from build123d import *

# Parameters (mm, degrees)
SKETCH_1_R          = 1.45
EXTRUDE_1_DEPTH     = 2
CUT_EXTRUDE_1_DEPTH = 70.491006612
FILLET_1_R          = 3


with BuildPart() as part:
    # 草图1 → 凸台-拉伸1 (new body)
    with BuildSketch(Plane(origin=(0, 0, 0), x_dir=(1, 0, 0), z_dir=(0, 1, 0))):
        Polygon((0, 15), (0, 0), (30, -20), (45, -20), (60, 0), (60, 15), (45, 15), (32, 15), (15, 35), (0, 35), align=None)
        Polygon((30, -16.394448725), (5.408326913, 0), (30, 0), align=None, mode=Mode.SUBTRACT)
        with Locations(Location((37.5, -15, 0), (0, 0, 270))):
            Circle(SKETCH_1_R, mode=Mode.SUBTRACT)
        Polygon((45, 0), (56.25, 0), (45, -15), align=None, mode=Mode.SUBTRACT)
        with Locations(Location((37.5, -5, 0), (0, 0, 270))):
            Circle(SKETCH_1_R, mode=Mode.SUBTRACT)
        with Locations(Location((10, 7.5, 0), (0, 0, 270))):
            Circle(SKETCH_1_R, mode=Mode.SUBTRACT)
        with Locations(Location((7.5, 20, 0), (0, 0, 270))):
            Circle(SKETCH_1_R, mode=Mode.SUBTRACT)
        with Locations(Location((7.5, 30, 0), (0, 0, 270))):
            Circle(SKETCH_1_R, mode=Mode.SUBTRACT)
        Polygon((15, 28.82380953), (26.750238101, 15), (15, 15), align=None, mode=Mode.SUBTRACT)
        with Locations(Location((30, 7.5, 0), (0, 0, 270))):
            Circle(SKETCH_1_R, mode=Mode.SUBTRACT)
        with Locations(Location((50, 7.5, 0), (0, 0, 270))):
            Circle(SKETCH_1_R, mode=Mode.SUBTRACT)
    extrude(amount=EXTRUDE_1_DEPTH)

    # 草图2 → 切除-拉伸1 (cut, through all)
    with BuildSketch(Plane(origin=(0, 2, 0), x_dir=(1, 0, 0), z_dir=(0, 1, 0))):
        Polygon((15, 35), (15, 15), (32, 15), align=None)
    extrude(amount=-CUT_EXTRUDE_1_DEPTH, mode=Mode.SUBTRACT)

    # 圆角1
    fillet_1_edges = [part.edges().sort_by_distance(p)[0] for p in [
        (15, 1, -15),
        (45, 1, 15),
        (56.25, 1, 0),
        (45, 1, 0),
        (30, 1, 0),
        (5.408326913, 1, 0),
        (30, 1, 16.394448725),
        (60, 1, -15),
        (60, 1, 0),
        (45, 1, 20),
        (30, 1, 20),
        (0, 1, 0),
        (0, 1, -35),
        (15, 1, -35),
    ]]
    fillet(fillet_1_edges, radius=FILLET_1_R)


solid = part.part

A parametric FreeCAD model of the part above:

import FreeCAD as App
import Part
import Sketcher

V = App.Vector


def edges_at(feature, points):
    """Names of the edges that pass closest to the given points."""
    edges = feature.Shape.Edges
    near = lambda p: min(range(len(edges)), key=lambda i: edges[i].distToShape(Part.Vertex(*p))[0])
    return sorted({f"Edge{near(p) + 1}" for p in points})


def add_polygon(sketch, points):
    """Adds a closed chain of lines whose ends are joined by coincident constraints."""
    first, n = sketch.GeometryCount, len(points)
    for a, b in zip(points, points[1:] + points[:1]):
        sketch.addGeometry(Part.LineSegment(App.Vector(*a, 0), App.Vector(*b, 0)), False)
    for i in range(n):
        sketch.addConstraint(Sketcher.Constraint("Coincident", first + i, 2, first + (i + 1) % n, 1))

doc = App.newDocument("Part")
body = doc.addObject("PartDesign::Body", "Body")

sketch1 = doc.addObject("Sketcher::SketchObject", "Sketch")
body.addObject(sketch1)
sketch1.AttachmentSupport = (doc.XZ_Plane, [""])
sketch1.MapMode = "FlatFace"
add_polygon(sketch1, [(0, 0), (30, 20), (45, 20), (60, 0), (60, -15), (32, -15), (15, -35), (0, -35)])
add_polygon(sketch1, [(30, 0), (30, 16.4), (5.4, 0)])
sketch1.addGeometry(Part.Circle(V(37.5, 15, 0), V(0, 0, 1), 1.4), False)
sketch1.addGeometry(Part.Circle(V(37.5, 5, 0), V(0, 0, 1), 1.4), False)
add_polygon(sketch1, [(45, 15), (45, 0), (56.2, 0)])
sketch1.addGeometry(Part.Circle(V(10, -7.5, 0), V(0, 0, 1), 1.4), False)
sketch1.addGeometry(Part.Circle(V(30, -7.5, 0), V(0, 0, 1), 1.4), False)
sketch1.addGeometry(Part.Circle(V(7.5, -20, 0), V(0, 0, 1), 1.4), False)
sketch1.addGeometry(Part.Circle(V(7.5, -30, 0), V(0, 0, 1), 1.4), False)
add_polygon(sketch1, [(15, -15), (15, -28.8), (26.8, -15)])
sketch1.addGeometry(Part.Circle(V(50, -7.5, 0), V(0, 0, 1), 1.4), False)
sketch1.addConstraint([
    Sketcher.Constraint("Horizontal", 1),
    Sketcher.Constraint("Vertical", 3),
    Sketcher.Constraint("Horizontal", 4),
    Sketcher.Constraint("Horizontal", 6),
    Sketcher.Constraint("Vertical", 7),
    Sketcher.Constraint("Vertical", 8),
    Sketcher.Constraint("Horizontal", 10),
    Sketcher.Constraint("Vertical", 13),
    Sketcher.Constraint("Horizontal", 14),
    Sketcher.Constraint("Vertical", 20),
    Sketcher.Constraint("Horizontal", 22),
    Sketcher.Constraint("Coincident", 7, 2, -1, 1),
    Sketcher.Constraint("Equal", 11, 12),
    Sketcher.Constraint("Equal", 12, 16),
    Sketcher.Constraint("Equal", 16, 17),
    Sketcher.Constraint("Equal", 17, 18),
    Sketcher.Constraint("Equal", 18, 19),
    Sketcher.Constraint("Equal", 19, 23),
    Sketcher.Constraint("PointOnObject", 2, 2, -1),
    Sketcher.Constraint("PointOnObject", 9, 2, -1),
    Sketcher.Constraint("PointOnObject", 13, 2, -1),
    Sketcher.Constraint("Parallel", 0, 9),
    Sketcher.Constraint("Parallel", 2, 15),
    Sketcher.Constraint("Parallel", 5, 21),
    Sketcher.Constraint("Horizontal", 16, 3, 17, 3),
    Sketcher.Constraint("Horizontal", 17, 3, 23, 3),
    Sketcher.Constraint("Horizontal", 11, 3, 15, 2),
    Sketcher.Constraint("Horizontal", 4, 2, 21, 2),
    Sketcher.Constraint("Vertical", 11, 3, 12, 3),
    Sketcher.Constraint("Vertical", 18, 3, 19, 3),
    Sketcher.Constraint("Vertical", 17, 3, 0, 2),
    Sketcher.Constraint("Vertical", 0, 2, 8, 2),
    Sketcher.Constraint("Vertical", 1, 2, 13, 2),
    Sketcher.Constraint("Vertical", 5, 2, 20, 2),
    Sketcher.Constraint("Equal", 1, 6),
    Sketcher.Constraint("Equal", 6, 3),
    Sketcher.Constraint("Equal", 3, 13),
    Sketcher.Constraint("Diameter", 11, 2.9),
    Sketcher.Constraint("DistanceX", 1, 1, 1, 2, 15.0),
    Sketcher.Constraint("DistanceX", 4, 2, 4, 1, 28.0),
    Sketcher.Constraint("DistanceY", 7, 1, 7, 2, 35.0),
    Sketcher.Constraint("Distance", 2, 25.0),
    Sketcher.Constraint("DistanceY", -1, 1, 12, 3, 5.0),
    Sketcher.Constraint("DistanceX", -1, 1, 16, 3, 10.0),
    Sketcher.Constraint("DistanceX", -1, 1, 17, 3, 30.0),
    Sketcher.Constraint("DistanceY", 18, 3, -1, 1, 20.0),
    Sketcher.Constraint("DistanceY", 19, 3, -1, 1, 30.0),
    Sketcher.Constraint("DistanceX", -1, 1, 23, 3, 50.0),
    Sketcher.Constraint("DistanceY", -1, 1, 0, 2, 20.0),
    Sketcher.Constraint("DistanceX", 18, 3, 12, 3, 30.0),
    Sketcher.Constraint("DistanceX", -1, 1, 11, 3, 37.5),
    Sketcher.Constraint("DistanceY", 16, 3, -1, 1, 7.5),
    Sketcher.Constraint("DistanceX", 22, 2, 22, 1, 11.750238),
    Sketcher.Constraint("DistanceY", 8, 1, 8, 2, 16.394449),
])
pad1 = doc.addObject("PartDesign::Pad", "Pad")
body.addObject(pad1)
pad1.Profile = sketch1
pad1.Length = 2
pad1.Reversed = True

sketch2 = doc.addObject("Sketcher::SketchObject", "Sketch001")
body.addObject(sketch2)
sketch2.AttachmentSupport = (doc.XZ_Plane, [""])
sketch2.MapMode = "FlatFace"
sketch2.AttachmentOffset = App.Placement(V(0, 0, -2), App.Rotation())
add_polygon(sketch2, [(15, -35), (15, -15), (32, -15)])
sketch2.addConstraint([
    Sketcher.Constraint("Vertical", 0),
    Sketcher.Constraint("Horizontal", 1),
    Sketcher.Constraint("DistanceX", 1, 1, 1, 2, 17.0),
    Sketcher.Constraint("DistanceY", 0, 1, 0, 2, 20.0),
    Sketcher.Constraint("DistanceX", -1, 1, 0, 2, 15.0),
    Sketcher.Constraint("DistanceY", 0, 2, -1, 1, 15.0),
])
pocket1 = doc.addObject("PartDesign::Pocket", "Pocket")
body.addObject(pocket1)
pocket1.Profile = sketch2
pocket1.Type = "ThroughAll"
pocket1.Reversed = True
doc.recompute()

fillet = doc.addObject("PartDesign::Fillet", "Fillet")
body.addObject(fillet)
fillet.Base = (pocket1, edges_at(pocket1, [
    (15, 1, -15),
    (45, 1, 15),
    (56.25, 1, 0),
    (45, 1, 0),
    (30, 1, 0),
    (5.408, 1, 0),
    (30, 1, 16.394),
    (60, 1, -15),
    (60, 1, 0),
    (45, 1, 20),
    (30, 1, 20),
    (0, 1, 0),
    (0, 1, -35),
    (15, 1, -35),
]))
fillet.Radius = 3

doc.recompute()
